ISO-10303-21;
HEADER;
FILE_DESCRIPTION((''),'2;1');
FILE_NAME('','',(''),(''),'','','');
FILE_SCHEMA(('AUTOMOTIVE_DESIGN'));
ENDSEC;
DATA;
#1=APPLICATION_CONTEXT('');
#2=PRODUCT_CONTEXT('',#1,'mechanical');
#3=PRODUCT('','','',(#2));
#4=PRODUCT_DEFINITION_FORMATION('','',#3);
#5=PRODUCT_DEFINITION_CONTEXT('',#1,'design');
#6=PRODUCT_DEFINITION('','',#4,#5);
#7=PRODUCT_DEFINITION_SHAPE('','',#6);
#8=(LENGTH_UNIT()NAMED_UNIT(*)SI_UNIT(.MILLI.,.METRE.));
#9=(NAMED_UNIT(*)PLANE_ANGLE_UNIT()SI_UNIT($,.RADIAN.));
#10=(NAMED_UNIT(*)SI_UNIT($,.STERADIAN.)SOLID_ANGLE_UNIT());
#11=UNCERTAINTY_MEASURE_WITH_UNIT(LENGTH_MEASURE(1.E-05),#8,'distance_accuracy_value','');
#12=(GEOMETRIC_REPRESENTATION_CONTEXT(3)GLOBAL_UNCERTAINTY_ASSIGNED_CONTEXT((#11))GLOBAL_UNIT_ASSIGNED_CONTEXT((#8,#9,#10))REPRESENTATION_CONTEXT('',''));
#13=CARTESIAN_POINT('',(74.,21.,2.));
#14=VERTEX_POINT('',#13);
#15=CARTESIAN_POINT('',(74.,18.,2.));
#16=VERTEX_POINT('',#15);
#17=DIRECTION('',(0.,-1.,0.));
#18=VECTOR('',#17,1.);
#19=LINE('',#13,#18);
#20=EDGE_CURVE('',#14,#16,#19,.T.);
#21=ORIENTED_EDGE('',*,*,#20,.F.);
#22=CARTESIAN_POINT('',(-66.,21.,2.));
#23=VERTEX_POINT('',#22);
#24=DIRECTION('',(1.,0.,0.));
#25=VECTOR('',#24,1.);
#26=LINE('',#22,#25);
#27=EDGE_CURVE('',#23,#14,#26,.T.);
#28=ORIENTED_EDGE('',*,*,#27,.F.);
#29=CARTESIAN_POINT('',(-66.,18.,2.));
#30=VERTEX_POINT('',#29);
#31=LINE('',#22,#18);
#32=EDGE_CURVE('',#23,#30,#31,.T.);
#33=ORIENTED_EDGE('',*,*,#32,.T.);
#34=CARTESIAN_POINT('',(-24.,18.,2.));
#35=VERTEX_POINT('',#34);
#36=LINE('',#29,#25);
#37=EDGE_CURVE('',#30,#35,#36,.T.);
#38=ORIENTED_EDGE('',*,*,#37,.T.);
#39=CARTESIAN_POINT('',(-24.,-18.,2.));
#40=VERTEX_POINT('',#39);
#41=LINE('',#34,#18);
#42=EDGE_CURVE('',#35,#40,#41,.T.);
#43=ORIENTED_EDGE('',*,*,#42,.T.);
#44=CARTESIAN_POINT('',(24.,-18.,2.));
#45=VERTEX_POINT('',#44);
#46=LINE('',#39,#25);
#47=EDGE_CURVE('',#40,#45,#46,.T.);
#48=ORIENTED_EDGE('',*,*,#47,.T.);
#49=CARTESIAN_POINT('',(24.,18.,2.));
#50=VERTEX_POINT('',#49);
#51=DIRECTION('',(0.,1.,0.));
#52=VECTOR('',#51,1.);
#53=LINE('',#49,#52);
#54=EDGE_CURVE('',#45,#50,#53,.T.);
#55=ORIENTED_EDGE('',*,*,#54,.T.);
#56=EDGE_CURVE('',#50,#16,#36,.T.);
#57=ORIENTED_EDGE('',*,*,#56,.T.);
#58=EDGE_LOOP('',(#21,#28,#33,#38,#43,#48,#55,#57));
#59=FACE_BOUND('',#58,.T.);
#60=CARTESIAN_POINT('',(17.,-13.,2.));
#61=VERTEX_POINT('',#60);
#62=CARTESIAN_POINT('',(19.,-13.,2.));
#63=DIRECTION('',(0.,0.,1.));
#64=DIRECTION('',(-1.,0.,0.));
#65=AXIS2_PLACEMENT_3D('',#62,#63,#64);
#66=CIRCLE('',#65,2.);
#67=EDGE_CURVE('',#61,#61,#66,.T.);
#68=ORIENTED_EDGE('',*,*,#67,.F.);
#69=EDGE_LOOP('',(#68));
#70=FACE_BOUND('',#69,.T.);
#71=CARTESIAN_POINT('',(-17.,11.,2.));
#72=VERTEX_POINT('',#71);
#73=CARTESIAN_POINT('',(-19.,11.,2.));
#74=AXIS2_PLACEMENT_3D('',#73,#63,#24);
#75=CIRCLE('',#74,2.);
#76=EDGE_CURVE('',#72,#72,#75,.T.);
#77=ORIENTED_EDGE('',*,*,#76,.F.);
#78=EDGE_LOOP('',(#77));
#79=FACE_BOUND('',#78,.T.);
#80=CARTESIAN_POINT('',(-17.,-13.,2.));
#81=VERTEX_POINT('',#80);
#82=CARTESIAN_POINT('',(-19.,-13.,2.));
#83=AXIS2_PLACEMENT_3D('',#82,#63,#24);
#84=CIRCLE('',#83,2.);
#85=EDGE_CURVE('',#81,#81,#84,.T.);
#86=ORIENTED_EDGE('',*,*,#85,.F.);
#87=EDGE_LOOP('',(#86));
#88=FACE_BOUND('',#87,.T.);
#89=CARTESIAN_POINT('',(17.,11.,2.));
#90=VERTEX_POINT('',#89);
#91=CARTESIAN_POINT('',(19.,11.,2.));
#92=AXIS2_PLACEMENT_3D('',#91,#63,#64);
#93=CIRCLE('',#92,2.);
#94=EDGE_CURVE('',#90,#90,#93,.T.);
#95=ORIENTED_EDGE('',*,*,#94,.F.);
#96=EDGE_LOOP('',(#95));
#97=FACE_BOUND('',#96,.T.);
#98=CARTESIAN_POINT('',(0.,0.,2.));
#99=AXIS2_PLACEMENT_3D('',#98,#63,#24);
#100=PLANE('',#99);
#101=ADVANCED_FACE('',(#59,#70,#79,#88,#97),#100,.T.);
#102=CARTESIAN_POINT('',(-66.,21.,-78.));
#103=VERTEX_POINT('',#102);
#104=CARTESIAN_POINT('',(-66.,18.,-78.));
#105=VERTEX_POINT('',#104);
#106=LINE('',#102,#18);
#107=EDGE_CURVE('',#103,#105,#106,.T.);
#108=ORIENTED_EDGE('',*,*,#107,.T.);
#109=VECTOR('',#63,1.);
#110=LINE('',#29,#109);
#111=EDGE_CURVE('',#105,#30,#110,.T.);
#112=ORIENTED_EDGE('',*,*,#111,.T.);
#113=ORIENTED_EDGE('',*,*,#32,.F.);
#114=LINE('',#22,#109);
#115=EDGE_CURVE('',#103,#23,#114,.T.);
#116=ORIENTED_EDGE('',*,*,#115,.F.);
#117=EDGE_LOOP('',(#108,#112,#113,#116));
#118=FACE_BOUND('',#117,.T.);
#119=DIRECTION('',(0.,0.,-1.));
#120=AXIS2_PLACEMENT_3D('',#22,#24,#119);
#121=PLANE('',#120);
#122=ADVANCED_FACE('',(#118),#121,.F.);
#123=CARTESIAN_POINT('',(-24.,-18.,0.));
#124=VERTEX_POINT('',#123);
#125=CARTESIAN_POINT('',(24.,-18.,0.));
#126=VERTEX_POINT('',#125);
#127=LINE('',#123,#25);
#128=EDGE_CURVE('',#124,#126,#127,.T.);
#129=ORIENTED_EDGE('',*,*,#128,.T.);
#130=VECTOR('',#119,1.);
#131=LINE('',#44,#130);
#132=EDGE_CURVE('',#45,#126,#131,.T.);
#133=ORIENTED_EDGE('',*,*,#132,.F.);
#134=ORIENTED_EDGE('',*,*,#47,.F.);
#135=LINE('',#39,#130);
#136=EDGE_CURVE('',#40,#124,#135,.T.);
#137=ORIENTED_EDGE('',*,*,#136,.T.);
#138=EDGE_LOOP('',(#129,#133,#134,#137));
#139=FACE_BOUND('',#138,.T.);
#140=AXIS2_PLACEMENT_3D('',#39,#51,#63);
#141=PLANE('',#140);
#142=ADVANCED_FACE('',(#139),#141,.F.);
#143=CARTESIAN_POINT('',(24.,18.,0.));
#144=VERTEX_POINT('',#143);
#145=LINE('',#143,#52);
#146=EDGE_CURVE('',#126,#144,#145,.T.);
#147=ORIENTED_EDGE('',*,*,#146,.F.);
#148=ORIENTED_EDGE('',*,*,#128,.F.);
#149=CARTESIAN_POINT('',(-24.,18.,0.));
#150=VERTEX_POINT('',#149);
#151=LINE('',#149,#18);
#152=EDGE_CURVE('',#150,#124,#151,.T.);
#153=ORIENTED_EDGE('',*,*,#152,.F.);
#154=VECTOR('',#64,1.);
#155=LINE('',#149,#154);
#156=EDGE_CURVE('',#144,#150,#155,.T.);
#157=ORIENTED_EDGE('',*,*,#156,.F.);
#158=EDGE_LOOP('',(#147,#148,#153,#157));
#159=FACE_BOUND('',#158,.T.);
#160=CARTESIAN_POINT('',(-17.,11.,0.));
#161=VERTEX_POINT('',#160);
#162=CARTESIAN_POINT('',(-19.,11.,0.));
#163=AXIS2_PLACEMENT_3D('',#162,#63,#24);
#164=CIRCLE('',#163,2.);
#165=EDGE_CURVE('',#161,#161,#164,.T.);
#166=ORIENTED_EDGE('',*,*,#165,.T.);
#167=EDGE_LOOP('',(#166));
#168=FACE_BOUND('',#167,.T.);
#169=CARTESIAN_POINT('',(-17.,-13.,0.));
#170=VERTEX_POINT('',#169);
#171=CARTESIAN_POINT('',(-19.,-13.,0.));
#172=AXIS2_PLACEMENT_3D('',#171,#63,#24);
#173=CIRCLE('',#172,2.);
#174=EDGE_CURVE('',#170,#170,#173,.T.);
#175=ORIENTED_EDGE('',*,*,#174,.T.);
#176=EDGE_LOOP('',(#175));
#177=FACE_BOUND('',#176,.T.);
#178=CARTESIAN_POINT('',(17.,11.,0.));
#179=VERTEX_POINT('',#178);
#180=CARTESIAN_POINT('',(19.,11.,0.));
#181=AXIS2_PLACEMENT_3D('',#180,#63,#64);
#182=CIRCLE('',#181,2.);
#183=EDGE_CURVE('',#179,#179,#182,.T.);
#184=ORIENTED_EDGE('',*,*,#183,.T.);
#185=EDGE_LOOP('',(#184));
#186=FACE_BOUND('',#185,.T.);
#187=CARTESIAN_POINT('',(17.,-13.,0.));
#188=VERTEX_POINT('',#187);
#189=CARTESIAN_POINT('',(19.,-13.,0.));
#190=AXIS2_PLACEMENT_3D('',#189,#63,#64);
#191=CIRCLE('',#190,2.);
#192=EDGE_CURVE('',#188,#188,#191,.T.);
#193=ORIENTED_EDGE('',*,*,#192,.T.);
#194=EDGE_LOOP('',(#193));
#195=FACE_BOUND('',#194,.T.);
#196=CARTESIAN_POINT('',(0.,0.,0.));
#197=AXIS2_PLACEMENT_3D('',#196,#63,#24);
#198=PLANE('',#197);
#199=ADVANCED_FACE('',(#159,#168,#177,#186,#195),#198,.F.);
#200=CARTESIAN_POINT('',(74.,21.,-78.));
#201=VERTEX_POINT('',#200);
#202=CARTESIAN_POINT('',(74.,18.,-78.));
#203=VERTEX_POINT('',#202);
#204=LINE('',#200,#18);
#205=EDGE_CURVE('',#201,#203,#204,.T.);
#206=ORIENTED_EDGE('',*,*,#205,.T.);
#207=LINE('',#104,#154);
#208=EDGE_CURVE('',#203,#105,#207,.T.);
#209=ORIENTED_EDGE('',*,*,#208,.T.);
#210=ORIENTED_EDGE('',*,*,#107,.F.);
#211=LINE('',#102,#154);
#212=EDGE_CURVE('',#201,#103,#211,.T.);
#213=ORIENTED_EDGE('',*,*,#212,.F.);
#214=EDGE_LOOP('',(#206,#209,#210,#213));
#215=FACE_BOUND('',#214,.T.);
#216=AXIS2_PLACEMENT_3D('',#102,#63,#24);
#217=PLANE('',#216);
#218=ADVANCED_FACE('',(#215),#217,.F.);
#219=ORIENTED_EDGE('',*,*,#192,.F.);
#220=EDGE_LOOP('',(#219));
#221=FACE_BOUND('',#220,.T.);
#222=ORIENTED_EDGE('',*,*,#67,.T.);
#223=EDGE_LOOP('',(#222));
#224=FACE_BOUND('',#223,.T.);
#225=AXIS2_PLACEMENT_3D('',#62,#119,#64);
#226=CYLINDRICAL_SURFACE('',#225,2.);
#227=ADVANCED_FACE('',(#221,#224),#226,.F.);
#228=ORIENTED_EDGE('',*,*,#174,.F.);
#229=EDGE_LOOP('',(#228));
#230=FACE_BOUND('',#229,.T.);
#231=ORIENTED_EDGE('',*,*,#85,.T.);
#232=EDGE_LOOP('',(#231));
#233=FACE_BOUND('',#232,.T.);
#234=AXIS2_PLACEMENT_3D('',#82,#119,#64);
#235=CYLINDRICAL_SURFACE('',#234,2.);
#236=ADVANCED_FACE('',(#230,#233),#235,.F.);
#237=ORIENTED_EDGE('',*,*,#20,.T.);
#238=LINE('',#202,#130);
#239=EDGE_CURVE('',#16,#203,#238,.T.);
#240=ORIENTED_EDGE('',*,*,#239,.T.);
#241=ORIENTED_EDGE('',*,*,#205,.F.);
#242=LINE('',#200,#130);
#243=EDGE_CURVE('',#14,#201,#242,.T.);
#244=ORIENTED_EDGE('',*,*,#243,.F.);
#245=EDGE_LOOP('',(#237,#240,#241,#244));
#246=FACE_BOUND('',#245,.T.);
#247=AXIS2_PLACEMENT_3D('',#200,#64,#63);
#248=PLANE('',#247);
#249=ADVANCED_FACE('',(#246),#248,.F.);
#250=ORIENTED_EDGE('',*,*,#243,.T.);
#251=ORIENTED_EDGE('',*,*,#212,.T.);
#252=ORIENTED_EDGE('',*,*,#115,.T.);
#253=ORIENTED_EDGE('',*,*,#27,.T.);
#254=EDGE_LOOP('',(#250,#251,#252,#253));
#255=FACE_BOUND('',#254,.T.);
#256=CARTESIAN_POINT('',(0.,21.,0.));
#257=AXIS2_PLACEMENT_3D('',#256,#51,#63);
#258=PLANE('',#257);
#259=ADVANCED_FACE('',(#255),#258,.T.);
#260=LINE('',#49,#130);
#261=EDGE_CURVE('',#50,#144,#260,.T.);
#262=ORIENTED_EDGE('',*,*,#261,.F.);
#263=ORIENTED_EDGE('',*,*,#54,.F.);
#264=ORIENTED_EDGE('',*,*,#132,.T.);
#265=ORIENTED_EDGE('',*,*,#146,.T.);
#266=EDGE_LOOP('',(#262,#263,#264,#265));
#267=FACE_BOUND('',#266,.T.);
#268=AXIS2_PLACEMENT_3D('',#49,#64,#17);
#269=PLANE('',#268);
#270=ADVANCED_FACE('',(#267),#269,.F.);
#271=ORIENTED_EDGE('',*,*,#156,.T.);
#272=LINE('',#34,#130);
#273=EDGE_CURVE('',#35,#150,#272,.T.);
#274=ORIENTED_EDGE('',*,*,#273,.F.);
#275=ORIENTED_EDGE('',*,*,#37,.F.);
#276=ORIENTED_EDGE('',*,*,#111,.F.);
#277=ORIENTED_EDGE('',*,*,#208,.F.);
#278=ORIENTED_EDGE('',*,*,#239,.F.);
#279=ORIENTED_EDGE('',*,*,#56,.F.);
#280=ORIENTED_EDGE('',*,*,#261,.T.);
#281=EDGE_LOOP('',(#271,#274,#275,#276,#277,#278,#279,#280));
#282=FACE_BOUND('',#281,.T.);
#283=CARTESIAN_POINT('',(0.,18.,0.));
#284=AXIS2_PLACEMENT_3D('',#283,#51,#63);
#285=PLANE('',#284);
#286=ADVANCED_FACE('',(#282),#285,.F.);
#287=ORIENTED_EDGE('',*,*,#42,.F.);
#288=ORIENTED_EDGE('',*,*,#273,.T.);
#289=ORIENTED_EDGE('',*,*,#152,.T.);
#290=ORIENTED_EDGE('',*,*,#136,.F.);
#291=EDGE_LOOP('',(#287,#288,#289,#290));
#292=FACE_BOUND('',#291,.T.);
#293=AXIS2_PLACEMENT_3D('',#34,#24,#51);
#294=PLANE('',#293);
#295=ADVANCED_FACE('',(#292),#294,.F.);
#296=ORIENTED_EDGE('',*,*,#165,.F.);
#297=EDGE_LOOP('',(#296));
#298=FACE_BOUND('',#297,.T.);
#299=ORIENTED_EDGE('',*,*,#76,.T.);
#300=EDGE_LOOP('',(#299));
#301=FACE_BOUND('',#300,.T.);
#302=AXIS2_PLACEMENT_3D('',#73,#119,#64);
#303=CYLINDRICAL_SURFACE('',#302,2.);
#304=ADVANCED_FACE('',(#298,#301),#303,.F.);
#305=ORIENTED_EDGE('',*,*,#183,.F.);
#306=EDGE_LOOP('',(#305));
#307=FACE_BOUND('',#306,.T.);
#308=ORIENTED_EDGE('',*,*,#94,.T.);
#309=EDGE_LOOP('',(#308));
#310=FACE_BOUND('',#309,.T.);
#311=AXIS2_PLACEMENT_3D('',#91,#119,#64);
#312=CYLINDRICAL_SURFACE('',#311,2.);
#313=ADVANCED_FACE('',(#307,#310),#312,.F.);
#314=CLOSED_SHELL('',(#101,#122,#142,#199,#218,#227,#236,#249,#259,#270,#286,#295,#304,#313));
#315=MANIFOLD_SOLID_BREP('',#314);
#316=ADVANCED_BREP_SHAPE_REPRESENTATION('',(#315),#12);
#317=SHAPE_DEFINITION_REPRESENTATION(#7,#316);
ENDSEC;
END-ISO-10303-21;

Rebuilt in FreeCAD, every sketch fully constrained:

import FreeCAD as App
import Part
import Sketcher


def add_polygon(sketch, points):
    """Adds a closed chain of lines whose ends are joined by coincident constraints."""
    first, n = sketch.GeometryCount, len(points)
    for a, b in zip(points, points[1:] + points[:1]):
        sketch.addGeometry(Part.LineSegment(App.Vector(*a, 0), App.Vector(*b, 0)), False)
    for i in range(n):
        sketch.addConstraint(Sketcher.Constraint("Coincident", first + i, 2, first + (i + 1) % n, 1))

doc = App.newDocument("Part")
body = doc.addObject("PartDesign::Body", "Body")

sketch1 = doc.addObject("Sketcher::SketchObject", "Sketch")
body.addObject(sketch1)
sketch1.AttachmentSupport = (doc.XY_Plane, [""])
sketch1.MapMode = "FlatFace"
add_polygon(sketch1, [(-24, 18), (-24, -18), (24, -18), (24, 18)])
sketch1.addGeometry(Part.Circle(App.Vector(-19, -13, 0), App.Vector(0, 0, 1), 2), False)
sketch1.addGeometry(Part.Circle(App.Vector(19, -13, 0), App.Vector(0, 0, 1), 2), False)
sketch1.addGeometry(Part.Circle(App.Vector(-19, 11, 0), App.Vector(0, 0, 1), 2), False)
sketch1.addGeometry(Part.Circle(App.Vector(19, 11, 0), App.Vector(0, 0, 1), 2), False)
sketch1.addConstraint(Sketcher.Constraint("Vertical", 0))
sketch1.addConstraint(Sketcher.Constraint("Horizontal", 1))
sketch1.addConstraint(Sketcher.Constraint("Vertical", 2))
sketch1.addConstraint(Sketcher.Constraint("Horizontal", 3))
sketch1.addConstraint(Sketcher.Constraint("Equal", 4, 5))
sketch1.addConstraint(Sketcher.Constraint("Equal", 5, 6))
sketch1.addConstraint(Sketcher.Constraint("Equal", 6, 7))
sketch1.addConstraint(Sketcher.Constraint("Symmetric", 0, 2, 2, 2, -1, 1))
sketch1.addConstraint(Sketcher.Constraint("Symmetric", 4, 3, 5, 3, -2))
sketch1.addConstraint(Sketcher.Constraint("Symmetric", 6, 3, 7, 3, -2))
sketch1.addConstraint(Sketcher.Constraint("Vertical", 4, 3, 6, 3))
sketch1.addConstraint(Sketcher.Constraint("Diameter", 4, 4.0))
sketch1.addConstraint(Sketcher.Constraint("DistanceX", 1, 1, 1, 2, 48.0))
sketch1.addConstraint(Sketcher.Constraint("DistanceY", 0, 2, 0, 1, 36.0))
sketch1.addConstraint(Sketcher.Constraint("DistanceX", 4, 3, -1, 1, 19.0))
sketch1.addConstraint(Sketcher.Constraint("DistanceY", 4, 3, -1, 1, 13.0))
sketch1.addConstraint(Sketcher.Constraint("DistanceY", -1, 1, 6, 3, 11.0))
pad1 = doc.addObject("PartDesign::Pad", "Pad")
body.addObject(pad1)
pad1.Profile = sketch1
pad1.Length = 2

sketch2 = doc.addObject("Sketcher::SketchObject", "Sketch001")
body.addObject(sketch2)
sketch2.AttachmentSupport = (doc.XZ_Plane, [""])
sketch2.MapMode = "FlatFace"
sketch2.AttachmentOffset = App.Placement(App.Vector(0, 0, -18), App.Rotation())
add_polygon(sketch2, [(-66, -78), (-66, 2), (74, 2), (74, -78)])
sketch2.addConstraint(Sketcher.Constraint("Vertical", 0))
sketch2.addConstraint(Sketcher.Constraint("Horizontal", 1))
sketch2.addConstraint(Sketcher.Constraint("Vertical", 2))
sketch2.addConstraint(Sketcher.Constraint("Horizontal", 3))
sketch2.addConstraint(Sketcher.Constraint("DistanceX", 1, 1, 1, 2, 140.0))
sketch2.addConstraint(Sketcher.Constraint("DistanceY", 0, 1, 0, 2, 80.0))
sketch2.addConstraint(Sketcher.Constraint("DistanceX", 0, 2, -1, 1, 66.0))
sketch2.addConstraint(Sketcher.Constraint("DistanceY", -1, 1, 0, 2, 2.0))
pad2 = doc.addObject("PartDesign::Pad", "Pad001")
body.addObject(pad2)
pad2.Profile = sketch2
pad2.Length = 3
pad2.Reversed = True

doc.recompute()
